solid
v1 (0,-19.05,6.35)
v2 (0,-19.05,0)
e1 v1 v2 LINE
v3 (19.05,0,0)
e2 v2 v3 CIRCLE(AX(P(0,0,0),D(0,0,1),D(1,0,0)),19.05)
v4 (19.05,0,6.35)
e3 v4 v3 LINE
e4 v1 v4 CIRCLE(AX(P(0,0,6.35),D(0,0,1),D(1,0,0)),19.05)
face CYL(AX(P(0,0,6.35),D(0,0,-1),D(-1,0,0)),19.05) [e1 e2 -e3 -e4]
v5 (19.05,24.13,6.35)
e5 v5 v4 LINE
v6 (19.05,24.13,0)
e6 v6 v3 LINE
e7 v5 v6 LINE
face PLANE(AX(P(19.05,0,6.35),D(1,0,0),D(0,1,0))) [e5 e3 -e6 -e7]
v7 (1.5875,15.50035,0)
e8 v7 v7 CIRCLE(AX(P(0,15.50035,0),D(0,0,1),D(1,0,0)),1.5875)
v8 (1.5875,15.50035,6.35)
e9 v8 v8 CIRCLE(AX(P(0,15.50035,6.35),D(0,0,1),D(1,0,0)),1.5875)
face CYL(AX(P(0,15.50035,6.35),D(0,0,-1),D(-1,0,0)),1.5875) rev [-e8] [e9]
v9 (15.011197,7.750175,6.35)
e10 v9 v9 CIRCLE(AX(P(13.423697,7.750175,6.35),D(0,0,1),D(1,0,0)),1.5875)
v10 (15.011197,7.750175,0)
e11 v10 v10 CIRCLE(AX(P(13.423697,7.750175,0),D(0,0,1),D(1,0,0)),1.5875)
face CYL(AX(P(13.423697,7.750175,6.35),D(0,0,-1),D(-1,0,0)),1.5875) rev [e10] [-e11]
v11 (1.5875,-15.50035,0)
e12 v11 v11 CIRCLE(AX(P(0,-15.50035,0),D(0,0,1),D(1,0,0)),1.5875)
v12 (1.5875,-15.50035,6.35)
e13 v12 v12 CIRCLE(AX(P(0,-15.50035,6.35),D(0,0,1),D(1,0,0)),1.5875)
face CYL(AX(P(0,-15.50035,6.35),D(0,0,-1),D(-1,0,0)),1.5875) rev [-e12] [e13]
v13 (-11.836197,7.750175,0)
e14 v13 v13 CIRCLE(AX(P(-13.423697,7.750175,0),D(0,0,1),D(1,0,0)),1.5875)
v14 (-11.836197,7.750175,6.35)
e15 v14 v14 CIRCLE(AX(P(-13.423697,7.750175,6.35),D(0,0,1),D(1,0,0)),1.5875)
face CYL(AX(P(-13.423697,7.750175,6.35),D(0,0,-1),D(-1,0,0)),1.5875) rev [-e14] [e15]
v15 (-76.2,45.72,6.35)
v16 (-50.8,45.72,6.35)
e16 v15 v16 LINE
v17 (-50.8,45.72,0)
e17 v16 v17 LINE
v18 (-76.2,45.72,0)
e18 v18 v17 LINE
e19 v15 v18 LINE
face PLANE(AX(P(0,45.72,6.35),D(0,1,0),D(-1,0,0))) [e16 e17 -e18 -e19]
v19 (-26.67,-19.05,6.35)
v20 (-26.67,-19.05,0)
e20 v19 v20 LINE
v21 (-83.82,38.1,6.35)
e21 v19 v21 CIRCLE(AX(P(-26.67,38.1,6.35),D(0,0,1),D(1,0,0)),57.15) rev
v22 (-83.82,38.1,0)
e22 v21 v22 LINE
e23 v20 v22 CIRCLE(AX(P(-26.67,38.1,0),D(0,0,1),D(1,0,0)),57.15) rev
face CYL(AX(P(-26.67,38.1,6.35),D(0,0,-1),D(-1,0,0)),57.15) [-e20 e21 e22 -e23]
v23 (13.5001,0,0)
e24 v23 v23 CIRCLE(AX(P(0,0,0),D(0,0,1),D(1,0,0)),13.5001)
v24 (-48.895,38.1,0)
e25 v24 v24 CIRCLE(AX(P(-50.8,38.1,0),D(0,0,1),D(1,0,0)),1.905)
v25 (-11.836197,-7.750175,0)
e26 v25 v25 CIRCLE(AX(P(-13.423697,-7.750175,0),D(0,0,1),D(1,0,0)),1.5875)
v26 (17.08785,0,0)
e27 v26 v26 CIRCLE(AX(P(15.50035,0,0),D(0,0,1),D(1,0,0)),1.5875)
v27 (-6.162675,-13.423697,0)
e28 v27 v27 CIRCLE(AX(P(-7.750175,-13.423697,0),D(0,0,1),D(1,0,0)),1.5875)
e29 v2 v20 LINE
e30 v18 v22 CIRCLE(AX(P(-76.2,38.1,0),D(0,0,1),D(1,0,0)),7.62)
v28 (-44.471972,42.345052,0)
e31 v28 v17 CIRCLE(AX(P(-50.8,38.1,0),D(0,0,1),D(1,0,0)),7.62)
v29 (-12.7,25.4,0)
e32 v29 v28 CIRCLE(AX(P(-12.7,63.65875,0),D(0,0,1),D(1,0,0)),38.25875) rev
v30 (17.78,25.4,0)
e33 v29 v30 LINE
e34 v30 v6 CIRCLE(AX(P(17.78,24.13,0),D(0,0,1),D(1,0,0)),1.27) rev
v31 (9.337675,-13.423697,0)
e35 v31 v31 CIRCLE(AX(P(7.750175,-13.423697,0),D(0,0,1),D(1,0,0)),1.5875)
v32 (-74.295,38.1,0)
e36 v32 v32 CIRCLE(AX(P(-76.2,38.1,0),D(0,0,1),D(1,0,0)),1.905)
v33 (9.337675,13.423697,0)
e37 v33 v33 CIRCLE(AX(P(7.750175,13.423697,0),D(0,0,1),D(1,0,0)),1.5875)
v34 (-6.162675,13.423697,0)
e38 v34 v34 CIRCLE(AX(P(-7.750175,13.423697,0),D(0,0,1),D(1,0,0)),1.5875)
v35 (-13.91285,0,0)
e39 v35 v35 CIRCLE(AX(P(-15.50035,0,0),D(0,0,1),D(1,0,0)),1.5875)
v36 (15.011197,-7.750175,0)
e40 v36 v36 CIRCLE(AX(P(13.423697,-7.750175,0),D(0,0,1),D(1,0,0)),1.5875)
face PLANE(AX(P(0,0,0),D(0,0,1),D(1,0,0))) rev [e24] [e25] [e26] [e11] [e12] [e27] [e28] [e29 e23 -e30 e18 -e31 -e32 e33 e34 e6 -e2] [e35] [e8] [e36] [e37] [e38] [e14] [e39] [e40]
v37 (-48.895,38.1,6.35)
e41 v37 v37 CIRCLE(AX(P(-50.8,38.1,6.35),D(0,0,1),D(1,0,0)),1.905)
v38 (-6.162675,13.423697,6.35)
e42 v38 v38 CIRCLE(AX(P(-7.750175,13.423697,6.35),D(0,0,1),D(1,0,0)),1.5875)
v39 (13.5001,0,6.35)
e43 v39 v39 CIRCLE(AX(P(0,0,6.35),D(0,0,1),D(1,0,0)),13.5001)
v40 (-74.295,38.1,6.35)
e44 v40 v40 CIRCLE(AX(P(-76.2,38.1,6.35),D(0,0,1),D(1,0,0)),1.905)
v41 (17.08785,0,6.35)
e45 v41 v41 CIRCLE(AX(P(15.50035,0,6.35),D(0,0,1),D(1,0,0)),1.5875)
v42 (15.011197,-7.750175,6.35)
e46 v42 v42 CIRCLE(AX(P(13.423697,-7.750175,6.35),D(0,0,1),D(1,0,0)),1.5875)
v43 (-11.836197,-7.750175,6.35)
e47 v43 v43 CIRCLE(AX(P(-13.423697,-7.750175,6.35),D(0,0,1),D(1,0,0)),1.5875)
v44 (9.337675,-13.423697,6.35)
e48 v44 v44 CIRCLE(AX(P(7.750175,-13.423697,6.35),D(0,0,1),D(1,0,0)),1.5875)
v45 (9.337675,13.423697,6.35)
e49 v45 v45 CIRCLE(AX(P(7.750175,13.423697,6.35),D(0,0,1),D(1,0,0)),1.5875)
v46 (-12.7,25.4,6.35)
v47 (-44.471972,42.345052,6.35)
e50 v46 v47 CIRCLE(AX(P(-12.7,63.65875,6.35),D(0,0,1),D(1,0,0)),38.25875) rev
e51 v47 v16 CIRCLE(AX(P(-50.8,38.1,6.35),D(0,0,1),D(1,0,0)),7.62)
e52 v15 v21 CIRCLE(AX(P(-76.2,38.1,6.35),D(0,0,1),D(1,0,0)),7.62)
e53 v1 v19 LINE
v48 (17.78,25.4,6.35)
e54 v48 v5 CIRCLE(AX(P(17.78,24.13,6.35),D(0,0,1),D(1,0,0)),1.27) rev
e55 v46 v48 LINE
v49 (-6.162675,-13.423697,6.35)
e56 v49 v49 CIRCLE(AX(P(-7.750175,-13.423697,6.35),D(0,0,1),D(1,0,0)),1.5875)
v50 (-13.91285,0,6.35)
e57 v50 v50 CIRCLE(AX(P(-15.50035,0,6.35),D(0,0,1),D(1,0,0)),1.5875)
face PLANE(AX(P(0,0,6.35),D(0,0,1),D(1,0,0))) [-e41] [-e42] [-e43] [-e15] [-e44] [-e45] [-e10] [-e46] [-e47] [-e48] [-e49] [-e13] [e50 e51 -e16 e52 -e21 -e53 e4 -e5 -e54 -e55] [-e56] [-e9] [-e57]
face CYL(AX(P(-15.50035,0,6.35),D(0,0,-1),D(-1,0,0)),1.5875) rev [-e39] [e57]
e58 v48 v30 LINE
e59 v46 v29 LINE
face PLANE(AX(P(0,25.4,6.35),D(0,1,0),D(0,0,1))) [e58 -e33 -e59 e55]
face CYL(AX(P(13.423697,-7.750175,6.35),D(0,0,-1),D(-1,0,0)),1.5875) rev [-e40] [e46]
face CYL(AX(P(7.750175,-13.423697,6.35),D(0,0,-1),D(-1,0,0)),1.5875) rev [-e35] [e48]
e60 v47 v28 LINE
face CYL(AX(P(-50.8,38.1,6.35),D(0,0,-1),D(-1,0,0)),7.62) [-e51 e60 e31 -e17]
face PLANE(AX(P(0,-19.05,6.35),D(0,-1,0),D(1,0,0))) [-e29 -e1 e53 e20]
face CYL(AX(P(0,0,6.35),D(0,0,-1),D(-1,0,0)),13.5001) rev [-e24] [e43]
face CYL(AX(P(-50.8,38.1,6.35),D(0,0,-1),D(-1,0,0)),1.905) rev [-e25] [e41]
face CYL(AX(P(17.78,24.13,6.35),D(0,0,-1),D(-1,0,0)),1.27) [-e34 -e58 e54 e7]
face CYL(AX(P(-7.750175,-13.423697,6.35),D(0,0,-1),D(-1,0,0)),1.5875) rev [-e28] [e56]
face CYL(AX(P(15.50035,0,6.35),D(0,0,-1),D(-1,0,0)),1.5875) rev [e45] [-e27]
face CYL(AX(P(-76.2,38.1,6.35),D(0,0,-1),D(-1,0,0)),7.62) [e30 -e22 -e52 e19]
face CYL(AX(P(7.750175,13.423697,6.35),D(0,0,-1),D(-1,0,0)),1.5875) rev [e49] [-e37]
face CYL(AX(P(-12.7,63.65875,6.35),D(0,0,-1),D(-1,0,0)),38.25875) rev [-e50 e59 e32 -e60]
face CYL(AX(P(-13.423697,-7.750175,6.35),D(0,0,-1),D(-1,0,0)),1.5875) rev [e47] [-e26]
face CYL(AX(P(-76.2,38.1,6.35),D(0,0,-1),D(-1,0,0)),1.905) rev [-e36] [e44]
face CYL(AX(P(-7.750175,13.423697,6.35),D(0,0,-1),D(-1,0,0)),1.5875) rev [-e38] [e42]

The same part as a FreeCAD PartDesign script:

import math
import FreeCAD as App
import Part
import Sketcher
Q = App.Units.Quantity

doc = App.newDocument("Part")
body = doc.addObject("PartDesign::Body", "Body")

sketch1 = doc.addObject("Sketcher::SketchObject", "Sketch")
body.addObject(sketch1)
sketch1.AttachmentSupport = (doc.XY_Plane, [""])
sketch1.MapMode = "FlatFace"
sketch1.addGeometry(Part.ArcOfCircle(Part.Circle(App.Vector(17.78, 24.13, 0), App.Vector(0, 0, 1), 1.27), math.radians(0), math.radians(90)), False)
sketch1.addGeometry(Part.LineSegment(App.Vector(17.78, 25.4, 0), App.Vector(-12.7, 25.4, 0)), False)
sketch1.addGeometry(Part.ArcOfCircle(Part.Circle(App.Vector(-12.7, 63.65875, 0), App.Vector(0, 0, 1), 38.25875), math.radians(-146.144974), math.radians(-90)), False)
sketch1.addGeometry(Part.ArcOfCircle(Part.Circle(App.Vector(-50.8, 38.1, 0), App.Vector(0, 0, 1), 7.62), math.radians(33.855026), math.radians(90)), False)
sketch1.addGeometry(Part.LineSegment(App.Vector(-50.8, 45.72, 0), App.Vector(-76.2, 45.72, 0)), False)
sketch1.addGeometry(Part.ArcOfCircle(Part.Circle(App.Vector(-76.2, 38.1, 0), App.Vector(0, 0, 1), 7.62), math.radians(90), math.radians(180)), False)
sketch1.addGeometry(Part.ArcOfCircle(Part.Circle(App.Vector(-26.67, 38.1, 0), App.Vector(0, 0, 1), 57.15), math.radians(180), math.radians(270)), False)
sketch1.addGeometry(Part.LineSegment(App.Vector(-26.67, -19.05, 0), App.Vector(0, -19.05, 0)), False)
sketch1.addGeometry(Part.ArcOfCircle(Part.Circle(App.Vector(0, 0, 0), App.Vector(0, 0, 1), 19.05), math.radians(-90), math.radians(0)), False)
sketch1.addGeometry(Part.LineSegment(App.Vector(19.05, 0, 0), App.Vector(19.05, 24.13, 0)), False)
sketch1.addGeometry(Part.Circle(App.Vector(7.750175, -13.423697, 0), App.Vector(0, 0, 1), 1.5875), False)
sketch1.addGeometry(Part.Circle(App.Vector(0, -15.50035, 0), App.Vector(0, 0, 1), 1.5875), False)
sketch1.addGeometry(Part.Circle(App.Vector(13.423697, -7.750175, 0), App.Vector(0, 0, 1), 1.5875), False)
sketch1.addGeometry(Part.Circle(App.Vector(-7.750175, -13.423697, 0), App.Vector(0, 0, 1), 1.5875), False)
sketch1.addGeometry(Part.Circle(App.Vector(-13.423697, -7.750175, 0), App.Vector(0, 0, 1), 1.5875), False)
sketch1.addGeometry(Part.Circle(App.Vector(15.50035, 0, 0), App.Vector(0, 0, 1), 1.5875), False)
sketch1.addGeometry(Part.Circle(App.Vector(0, 0, 0), App.Vector(0, 0, 1), 13.5001), False)
sketch1.addGeometry(Part.Circle(App.Vector(13.423697, 7.750175, 0), App.Vector(0, 0, 1), 1.5875), False)
sketch1.addGeometry(Part.Circle(App.Vector(-15.50035, 0, 0), App.Vector(0, 0, 1), 1.5875), False)
sketch1.addGeometry(Part.Circle(App.Vector(-13.423697, 7.750175, 0), App.Vector(0, 0, 1), 1.5875), False)
sketch1.addGeometry(Part.Circle(App.Vector(7.750175, 13.423697, 0), App.Vector(0, 0, 1), 1.5875), False)
sketch1.addGeometry(Part.Circle(App.Vector(0, 15.50035, 0), App.Vector(0, 0, 1), 1.5875), False)
sketch1.addGeometry(Part.Circle(App.Vector(-7.750175, 13.423697, 0), App.Vector(0, 0, 1), 1.5875), False)
sketch1.addGeometry(Part.Circle(App.Vector(-50.8, 38.1, 0), App.Vector(0, 0, 1), 1.905), False)
sketch1.addGeometry(Part.Circle(App.Vector(-76.2, 38.1, 0), App.Vector(0, 0, 1), 1.905), False)
sketch1.addConstraint(Sketcher.Constraint("Tangent", 0, 2, 1, 1))
sketch1.addConstraint(Sketcher.Constraint("Tangent", 1, 2, 2, 2))
sketch1.addConstraint(Sketcher.Constraint("Tangent", 2, 1, 3, 1))
sketch1.addConstraint(Sketcher.Constraint("Tangent", 3, 2, 4, 1))
sketch1.addConstraint(Sketcher.Constraint("Tangent", 4, 2, 5, 1))
sketch1.addConstraint(Sketcher.Constraint("Tangent", 5, 2, 6, 1))
sketch1.addConstraint(Sketcher.Constraint("Tangent", 6, 2, 7, 1))
sketch1.addConstraint(Sketcher.Constraint("Tangent", 7, 2, 8, 1))
sketch1.addConstraint(Sketcher.Constraint("Tangent", 8, 2, 9, 1))
sketch1.addConstraint(Sketcher.Constraint("Tangent", 9, 2, 0, 1))
sketch1.addConstraint(Sketcher.Constraint("Horizontal", 1))
sketch1.addConstraint(Sketcher.Constraint("Horizontal", 4))
sketch1.addConstraint(Sketcher.Constraint("Horizontal", 7))
sketch1.addConstraint(Sketcher.Constraint("Vertical", 9))
sketch1.addConstraint(Sketcher.Constraint("Coincident", 8, 3, -1, 1))
sketch1.addConstraint(Sketcher.Constraint("Coincident", 16, 3, -1, 1))
sketch1.addConstraint(Sketcher.Constraint("Coincident", 23, 3, 3, 3))
sketch1.addConstraint(Sketcher.Constraint("Coincident", 24, 3, 5, 3))
sketch1.addConstraint(Sketcher.Constraint("Equal", 3, 5))
sketch1.addConstraint(Sketcher.Constraint("Equal", 10, 11))
sketch1.addConstraint(Sketcher.Constraint("Equal", 11, 12))
sketch1.addConstraint(Sketcher.Constraint("Equal", 12, 13))
sketch1.addConstraint(Sketcher.Constraint("Equal", 13, 14))
sketch1.addConstraint(Sketcher.Constraint("Equal", 14, 15))
sketch1.addConstraint(Sketcher.Constraint("Equal", 15, 17))
sketch1.addConstraint(Sketcher.Constraint("Equal", 17, 18))
sketch1.addConstraint(Sketcher.Constraint("Equal", 18, 19))
sketch1.addConstraint(Sketcher.Constraint("Equal", 19, 20))
sketch1.addConstraint(Sketcher.Constraint("Equal", 20, 21))
sketch1.addConstraint(Sketcher.Constraint("Equal", 21, 22))
sketch1.addConstraint(Sketcher.Constraint("Equal", 23, 24))
sketch1.addConstraint(Sketcher.Constraint("Symmetric", 14, 3, 17, 3, -1, 1))
sketch1.addConstraint(Sketcher.Constraint("Symmetric", 15, 3, 18, 3, -1, 1))
sketch1.addConstraint(Sketcher.Constraint("Symmetric", 12, 3, 19, 3, -1, 1))
sketch1.addConstraint(Sketcher.Constraint("Symmetric", 13, 3, 20, 3, -1, 1))
sketch1.addConstraint(Sketcher.Constraint("Symmetric", 11, 3, 21, 3, -1, 1))
sketch1.addConstraint(Sketcher.Constraint("Symmetric", 10, 3, 22, 3, -1, 1))
sketch1.addConstraint(Sketcher.Constraint("Symmetric", 10, 3, 13, 3, -2))
sketch1.addConstraint(Sketcher.Constraint("Symmetric", 12, 3, 14, 3, -2))
sketch1.addConstraint(Sketcher.Constraint("PointOnObject", 11, 3, -2))
sketch1.addConstraint(Sketcher.Constraint("PointOnObject", 15, 3, -1))
sketch1.addConstraint(Sketcher.Constraint("Horizontal", 5, 3, 6, 3))
sketch1.addConstraint(Sketcher.Constraint("Radius", 3, Q("0.3 in")))
sketch1.addConstraint(Sketcher.Constraint("Diameter", 23, Q("0.15 in")))
sketch1.addConstraint(Sketcher.Constraint("DistanceX", 4, 2, 4, 1, Q("1 in")))
sketch1.addConstraint(Sketcher.Constraint("Radius", 0, Q("0.05 in")))
sketch1.addConstraint(Sketcher.Constraint("Radius", 6, Q("2.25 in")))
sketch1.addConstraint(Sketcher.Constraint("Radius", 8, Q("0.75 in")))
sketch1.addConstraint(Sketcher.Constraint("Diameter", 10, Q("0.125 in")))
sketch1.addConstraint(Sketcher.Constraint("Diameter", 16, Q("1.063 in")))
sketch1.addConstraint(Sketcher.Constraint("DistanceX", 1, 2, 1, 1, Q("1.2 in")))
sketch1.addConstraint(Sketcher.Constraint("DistanceX", 3, 3, -1, 1, Q("2 in")))
sketch1.addConstraint(Sketcher.Constraint("DistanceY", -1, 1, 0, 2, Q("1 in")))
sketch1.addConstraint(Sketcher.Constraint("DistanceY", 11, 3, -1, 1, 15.50035))
sketch1.addConstraint(Sketcher.Constraint("DistanceX", -1, 1, 15, 3, 15.50035))
sketch1.addConstraint(Sketcher.Constraint("DistanceX", 10, 3, 12, 3, 5.673522))
sketch1.addConstraint(Sketcher.Constraint("DistanceY", 10, 3, 12, 3, 5.673522))
sketch1.addConstraint(Sketcher.Constraint("DistanceX", 13, 3, 10, 3, 15.50035))
sketch1.addConstraint(Sketcher.Constraint("DistanceY", 12, 3, 17, 3, 15.50035))
pad1 = doc.addObject("PartDesign::Pad", "Pad")
body.addObject(pad1)
pad1.Profile = sketch1
pad1.Length = Q("0.25 in")

doc.recompute()
